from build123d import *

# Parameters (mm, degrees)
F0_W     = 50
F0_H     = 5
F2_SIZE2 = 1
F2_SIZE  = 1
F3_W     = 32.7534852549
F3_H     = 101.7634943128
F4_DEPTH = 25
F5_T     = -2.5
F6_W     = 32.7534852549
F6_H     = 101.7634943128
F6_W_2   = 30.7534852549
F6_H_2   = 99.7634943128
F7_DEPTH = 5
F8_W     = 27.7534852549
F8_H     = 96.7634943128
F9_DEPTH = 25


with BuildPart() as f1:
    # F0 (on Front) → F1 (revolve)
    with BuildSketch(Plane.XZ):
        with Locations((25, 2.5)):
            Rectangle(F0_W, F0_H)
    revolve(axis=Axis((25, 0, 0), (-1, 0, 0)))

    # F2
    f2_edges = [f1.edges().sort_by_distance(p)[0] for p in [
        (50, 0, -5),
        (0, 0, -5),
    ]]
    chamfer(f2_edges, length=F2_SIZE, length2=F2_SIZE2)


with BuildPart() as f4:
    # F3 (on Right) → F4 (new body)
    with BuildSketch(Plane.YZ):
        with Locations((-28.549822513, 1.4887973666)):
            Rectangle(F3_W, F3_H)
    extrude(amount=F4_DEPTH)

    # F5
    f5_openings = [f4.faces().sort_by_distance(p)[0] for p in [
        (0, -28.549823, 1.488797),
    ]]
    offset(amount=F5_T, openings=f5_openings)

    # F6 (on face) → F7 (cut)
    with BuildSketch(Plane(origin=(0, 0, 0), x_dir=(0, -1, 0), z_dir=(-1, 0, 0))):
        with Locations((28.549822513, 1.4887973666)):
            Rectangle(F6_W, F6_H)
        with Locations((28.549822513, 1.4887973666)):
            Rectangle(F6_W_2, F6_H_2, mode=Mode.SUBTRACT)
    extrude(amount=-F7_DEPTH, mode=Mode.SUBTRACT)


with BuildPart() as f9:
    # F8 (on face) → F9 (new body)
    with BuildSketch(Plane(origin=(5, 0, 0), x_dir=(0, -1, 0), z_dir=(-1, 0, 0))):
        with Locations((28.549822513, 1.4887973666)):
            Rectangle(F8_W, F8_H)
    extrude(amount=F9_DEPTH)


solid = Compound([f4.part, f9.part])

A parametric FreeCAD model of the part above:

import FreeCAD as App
import Part
import Sketcher

V = App.Vector


def edges_at(feature, points):
    """Names of the edges that pass closest to the given points."""
    edges = feature.Shape.Edges
    near = lambda p: min(range(len(edges)), key=lambda i: edges[i].distToShape(Part.Vertex(*p))[0])
    return sorted({f"Edge{near(p) + 1}" for p in points})


def faces_at(feature, points):
    """Names of the faces that lie closest to the given points."""
    faces = feature.Shape.Faces
    near = lambda p: min(range(len(faces)), key=lambda i: faces[i].distToShape(Part.Vertex(*p))[0])
    return sorted({f"Face{near(p) + 1}" for p in points})


def add_polygon(sketch, points):
    """Adds a closed chain of lines whose ends are joined by coincident constraints."""
    first, n = sketch.GeometryCount, len(points)
    for a, b in zip(points, points[1:] + points[:1]):
        sketch.addGeometry(Part.LineSegment(App.Vector(*a, 0), App.Vector(*b, 0)), False)
    for i in range(n):
        sketch.addConstraint(Sketcher.Constraint("Coincident", first + i, 2, first + (i + 1) % n, 1))

doc = App.newDocument("Part")
params = doc.addObject("Spreadsheet::Sheet", "Params")
for row, (alias, value) in enumerate([
    ("sketch1_width", "50 mm"),
    ("sketch1_height", "5 mm"),
    ("revolution_angle", "360 deg"),
    ("chamfer_size", "1 mm"),
    ("chamfer_size2", "1 mm"),
    ("pad1_length", "25 mm"),
    ("thickness_wall", "2.5 mm"),
    ("pocket1_length", "5 mm"),
    ("pad2_length", "25 mm"),
], start=1):
    params.set(f"A{row}", alias)
    params.set(f"B{row}", "=" + value)
    params.setAlias(f"B{row}", alias)

body = doc.addObject("PartDesign::Body", "Body")

# Sketch on XZ plane
sketch1 = doc.addObject("Sketcher::SketchObject", "Sketch")
body.addObject(sketch1)
sketch1.AttachmentSupport = (doc.XZ_Plane, [""])
sketch1.MapMode = "FlatFace"
add_polygon(sketch1, [(0, 5), (0, 0), (50, 0), (50, 5)])  # lines 0-3
sketch1.addConstraint(Sketcher.Constraint("Vertical", 0))
sketch1.addConstraint(Sketcher.Constraint("Horizontal", 1))
sketch1.addConstraint(Sketcher.Constraint("Vertical", 2))
sketch1.addConstraint(Sketcher.Constraint("Horizontal", 3))
sketch1.addConstraint(Sketcher.Constraint("Coincident", 0, 2, -1, 1))
sketch1.addConstraint(Sketcher.Constraint("DistanceX", 1, 1, 1, 2, 50.0))
sketch1.addConstraint(Sketcher.Constraint("DistanceY", 0, 2, 0, 1, 5.0))
sketch1.setExpression("Constraints[9]", "Params.sketch1_width")
sketch1.setExpression("Constraints[10]", "Params.sketch1_height")
revolution = doc.addObject("PartDesign::Revolution", "Revolution")
body.addObject(revolution)
revolution.Profile = sketch1
revolution.ReferenceAxis = (sketch1, ["H_Axis"])
revolution.setExpression("Angle", "Params.revolution_angle")
doc.recompute()

chamfer = doc.addObject("PartDesign::Chamfer", "Chamfer")
body.addObject(chamfer)
chamfer.Base = (revolution, edges_at(revolution, [(50, 0, -5), (0, 0, -5)]))
chamfer.ChamferType = "Two distances"
chamfer.setExpression("Size", "Params.chamfer_size")
chamfer.setExpression("Size2", "Params.chamfer_size2")
body2 = doc.addObject("PartDesign::Body", "Body001")

# Sketch on YZ plane
sketch2 = doc.addObject("Sketcher::SketchObject", "Sketch001")
body2.addObject(sketch2)
sketch2.AttachmentSupport = (doc.getObject("YZ_Plane001"), [""])
sketch2.MapMode = "FlatFace"
add_polygon(sketch2, [(-45, 52), (-45, -49), (-12, -49), (-12, 52)])  # lines 0-3
sketch2.addConstraint(Sketcher.Constraint("Vertical", 0))
sketch2.addConstraint(Sketcher.Constraint("Horizontal", 1))
sketch2.addConstraint(Sketcher.Constraint("Vertical", 2))
sketch2.addConstraint(Sketcher.Constraint("Horizontal", 3))
sketch2.addConstraint(Sketcher.Constraint("DistanceX", 1, 1, 1, 2, 32.753485))
sketch2.addConstraint(Sketcher.Constraint("DistanceY", 0, 2, 0, 1, 101.763494))
sketch2.addConstraint(Sketcher.Constraint("DistanceY", 0, 2, -1, 1, 49.39295))
sketch2.addConstraint(Sketcher.Constraint("DistanceX", 1, 2, -1, 1, 12.17308))
pad1 = doc.addObject("PartDesign::Pad", "Pad")
body2.addObject(pad1)
pad1.Profile = sketch2
pad1.setExpression("Length", "Params.pad1_length")
doc.recompute()

thickness = doc.addObject("PartDesign::Thickness", "Thickness")
body2.addObject(thickness)
thickness.Base = (pad1, faces_at(pad1, [(0, -28.55, 1.489)]))
thickness.setExpression("Value", "Params.thickness_wall")
thickness.Reversed = True
thickness.Join = "Arc"

# Sketch on YZ plane
sketch3 = doc.addObject("Sketcher::SketchObject", "Sketch002")
body2.addObject(sketch3)
sketch3.AttachmentSupport = (doc.getObject("YZ_Plane001"), [""])
sketch3.MapMode = "FlatFace"
add_polygon(sketch3, [(-12, 52), (-12, -49), (-45, -49), (-45, 52)])  # lines 0-3
add_polygon(sketch3, [(-44, -48), (-13, -48), (-13, 51), (-44, 51)])  # lines 4-7
sketch3.addConstraint(Sketcher.Constraint("Vertical", 0))
sketch3.addConstraint(Sketcher.Constraint("Horizontal", 1))
sketch3.addConstraint(Sketcher.Constraint("Vertical", 2))
sketch3.addConstraint(Sketcher.Constraint("Horizontal", 3))
sketch3.addConstraint(Sketcher.Constraint("Horizontal", 4))
sketch3.addConstraint(Sketcher.Constraint("Vertical", 5))
sketch3.addConstraint(Sketcher.Constraint("Horizontal", 6))
sketch3.addConstraint(Sketcher.Constraint("Vertical", 7))
sketch3.addConstraint(Sketcher.Constraint("DistanceX", 4, 2, 0, 2, 1.0))
sketch3.addConstraint(Sketcher.Constraint("DistanceY", 0, 2, 4, 2, 1.0))
sketch3.addConstraint(Sketcher.Constraint("DistanceY", 5, 2, 3, 2, 1.0))
sketch3.addConstraint(Sketcher.Constraint("DistanceX", 2, 2, 6, 2, 1.0))
sketch3.addConstraint(Sketcher.Constraint("DistanceX", 1, 2, 1, 1, 32.753485))
sketch3.addConstraint(Sketcher.Constraint("DistanceY", 0, 2, 0, 1, 101.763494))
sketch3.addConstraint(Sketcher.Constraint("DistanceX", 0, 2, -1, 1, 12.17308))
sketch3.addConstraint(Sketcher.Constraint("DistanceY", 0, 2, -1, 1, 49.39295))
pocket1 = doc.addObject("PartDesign::Pocket", "Pocket")
body2.addObject(pocket1)
pocket1.Profile = sketch3
pocket1.setExpression("Length", "Params.pocket1_length")
pocket1.Reversed = True
body3 = doc.addObject("PartDesign::Body", "Body002")

# Sketch on YZ plane
sketch4 = doc.addObject("Sketcher::SketchObject", "Sketch003")
body3.addObject(sketch4)
sketch4.AttachmentSupport = (doc.getObject("YZ_Plane002"), [""])
sketch4.MapMode = "FlatFace"
sketch4.AttachmentOffset = App.Placement(V(0, 0, 5), App.Rotation())
add_polygon(sketch4, [(-15, 50), (-15, -47), (-42, -47), (-42, 50)])  # lines 0-3
sketch4.addConstraint(Sketcher.Constraint("Vertical", 0))
sketch4.addConstraint(Sketcher.Constraint("Horizontal", 1))
sketch4.addConstraint(Sketcher.Constraint("Vertical", 2))
sketch4.addConstraint(Sketcher.Constraint("Horizontal", 3))
sketch4.addConstraint(Sketcher.Constraint("DistanceX", 1, 2, 1, 1, 27.753485))
sketch4.addConstraint(Sketcher.Constraint("DistanceY", 0, 2, 0, 1, 96.763494))
sketch4.addConstraint(Sketcher.Constraint("DistanceX", 0, 2, -1, 1, 14.67308))
sketch4.addConstraint(Sketcher.Constraint("DistanceY", 0, 2, -1, 1, 46.89295))
pad2 = doc.addObject("PartDesign::Pad", "Pad001")
body3.addObject(pad2)
pad2.Profile = sketch4
pad2.setExpression("Length", "Params.pad2_length")
pad2.Reversed = True
body.Visibility = False

doc.recompute()
